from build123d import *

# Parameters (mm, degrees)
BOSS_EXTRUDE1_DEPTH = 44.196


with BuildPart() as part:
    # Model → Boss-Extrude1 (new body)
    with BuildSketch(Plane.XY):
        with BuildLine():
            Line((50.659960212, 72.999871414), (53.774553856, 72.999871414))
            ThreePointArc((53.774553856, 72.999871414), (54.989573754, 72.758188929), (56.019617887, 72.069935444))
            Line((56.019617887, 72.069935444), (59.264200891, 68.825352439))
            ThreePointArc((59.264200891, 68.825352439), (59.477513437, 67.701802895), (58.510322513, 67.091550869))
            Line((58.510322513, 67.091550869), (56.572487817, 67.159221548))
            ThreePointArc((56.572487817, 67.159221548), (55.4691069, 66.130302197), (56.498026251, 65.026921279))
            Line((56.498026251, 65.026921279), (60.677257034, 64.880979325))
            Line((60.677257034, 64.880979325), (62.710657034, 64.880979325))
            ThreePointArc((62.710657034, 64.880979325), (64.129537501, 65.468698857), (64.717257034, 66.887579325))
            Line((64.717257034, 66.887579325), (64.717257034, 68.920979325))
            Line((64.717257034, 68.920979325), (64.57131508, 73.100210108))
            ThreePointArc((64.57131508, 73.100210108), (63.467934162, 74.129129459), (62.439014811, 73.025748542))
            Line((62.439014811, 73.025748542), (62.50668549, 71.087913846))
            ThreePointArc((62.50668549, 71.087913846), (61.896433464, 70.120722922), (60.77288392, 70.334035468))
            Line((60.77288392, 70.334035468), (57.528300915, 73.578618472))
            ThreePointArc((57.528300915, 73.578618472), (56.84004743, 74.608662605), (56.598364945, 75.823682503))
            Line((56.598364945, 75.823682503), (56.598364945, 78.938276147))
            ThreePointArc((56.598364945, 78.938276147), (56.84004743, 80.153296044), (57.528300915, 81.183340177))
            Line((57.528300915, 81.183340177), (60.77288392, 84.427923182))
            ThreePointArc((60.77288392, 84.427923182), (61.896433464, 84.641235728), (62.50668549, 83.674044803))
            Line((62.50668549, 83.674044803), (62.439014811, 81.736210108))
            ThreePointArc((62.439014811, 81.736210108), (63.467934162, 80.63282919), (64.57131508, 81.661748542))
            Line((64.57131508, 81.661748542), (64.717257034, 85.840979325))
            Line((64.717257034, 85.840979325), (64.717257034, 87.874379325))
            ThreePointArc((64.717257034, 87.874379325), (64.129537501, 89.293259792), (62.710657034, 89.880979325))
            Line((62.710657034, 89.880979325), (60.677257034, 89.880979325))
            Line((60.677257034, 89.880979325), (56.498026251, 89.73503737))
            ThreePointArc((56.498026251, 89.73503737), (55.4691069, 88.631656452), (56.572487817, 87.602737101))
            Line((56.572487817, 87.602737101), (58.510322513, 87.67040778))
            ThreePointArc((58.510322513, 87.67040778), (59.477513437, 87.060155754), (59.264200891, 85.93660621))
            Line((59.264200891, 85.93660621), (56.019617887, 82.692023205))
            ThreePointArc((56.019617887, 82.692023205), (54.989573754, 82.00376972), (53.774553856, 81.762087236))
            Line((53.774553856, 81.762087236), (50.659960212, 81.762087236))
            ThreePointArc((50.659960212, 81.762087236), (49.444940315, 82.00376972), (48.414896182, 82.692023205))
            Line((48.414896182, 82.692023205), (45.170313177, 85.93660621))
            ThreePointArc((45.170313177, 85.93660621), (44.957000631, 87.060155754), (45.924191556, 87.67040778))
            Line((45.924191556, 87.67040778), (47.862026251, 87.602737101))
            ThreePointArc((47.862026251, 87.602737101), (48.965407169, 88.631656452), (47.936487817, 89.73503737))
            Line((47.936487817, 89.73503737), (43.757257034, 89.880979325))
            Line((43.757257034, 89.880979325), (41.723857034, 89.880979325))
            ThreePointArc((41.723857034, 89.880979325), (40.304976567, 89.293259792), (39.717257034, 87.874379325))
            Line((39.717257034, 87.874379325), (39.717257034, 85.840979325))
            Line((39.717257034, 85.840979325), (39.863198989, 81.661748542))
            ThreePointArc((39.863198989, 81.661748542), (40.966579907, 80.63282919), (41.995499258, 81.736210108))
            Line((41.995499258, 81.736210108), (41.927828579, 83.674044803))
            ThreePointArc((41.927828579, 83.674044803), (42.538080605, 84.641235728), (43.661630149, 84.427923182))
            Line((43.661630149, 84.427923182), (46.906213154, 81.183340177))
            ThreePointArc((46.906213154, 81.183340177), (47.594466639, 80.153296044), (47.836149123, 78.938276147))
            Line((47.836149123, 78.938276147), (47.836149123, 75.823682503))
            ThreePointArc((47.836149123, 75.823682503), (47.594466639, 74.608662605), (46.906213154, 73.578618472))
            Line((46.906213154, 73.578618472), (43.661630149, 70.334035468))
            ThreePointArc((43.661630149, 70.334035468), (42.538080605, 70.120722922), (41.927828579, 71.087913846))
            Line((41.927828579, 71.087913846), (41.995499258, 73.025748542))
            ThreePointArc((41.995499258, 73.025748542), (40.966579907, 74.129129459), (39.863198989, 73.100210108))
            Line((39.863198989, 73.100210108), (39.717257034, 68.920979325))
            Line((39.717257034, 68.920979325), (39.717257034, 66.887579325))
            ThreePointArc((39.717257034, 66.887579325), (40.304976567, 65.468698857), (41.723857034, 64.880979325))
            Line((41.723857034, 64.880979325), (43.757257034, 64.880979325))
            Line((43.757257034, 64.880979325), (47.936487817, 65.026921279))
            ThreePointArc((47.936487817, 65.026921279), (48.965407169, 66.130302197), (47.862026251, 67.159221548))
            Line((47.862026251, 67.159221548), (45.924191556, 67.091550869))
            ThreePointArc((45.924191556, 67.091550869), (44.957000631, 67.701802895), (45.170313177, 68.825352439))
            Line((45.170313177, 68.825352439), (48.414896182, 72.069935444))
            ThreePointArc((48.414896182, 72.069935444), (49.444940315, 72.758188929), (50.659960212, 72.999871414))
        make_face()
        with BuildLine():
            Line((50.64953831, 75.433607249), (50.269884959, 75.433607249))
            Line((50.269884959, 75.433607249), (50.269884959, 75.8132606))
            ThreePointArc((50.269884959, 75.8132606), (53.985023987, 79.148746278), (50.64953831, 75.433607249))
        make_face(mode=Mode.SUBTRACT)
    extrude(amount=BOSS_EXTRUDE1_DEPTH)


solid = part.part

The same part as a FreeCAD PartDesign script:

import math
import FreeCAD as App
import Part
import Sketcher
Q = App.Units.Quantity

doc = App.newDocument("Part")
body = doc.addObject("PartDesign::Body", "Body")

# Sketch on XY plane
sketch1 = doc.addObject("Sketcher::SketchObject", "Sketch")
body.addObject(sketch1)
sketch1.AttachmentSupport = (doc.XY_Plane, [""])
sketch1.MapMode = "FlatFace"
sketch1.addGeometry([
    Part.LineSegment(App.Vector(50.66, 73, 0), App.Vector(53.77, 73, 0)),  # 0
    Part.ArcOfCircle(Part.Circle(App.Vector(53.77, 69.82, 0), App.Vector(0, 0, 1), 3.18), math.radians(45), math.radians(90)),  # 1
    Part.LineSegment(App.Vector(56.02, 72.07, 0), App.Vector(59.26, 68.83, 0)),  # 2
    Part.ArcOfCircle(Part.Circle(App.Vector(58.55, 68.11, 0), App.Vector(0, 0, 1), 1.02), math.radians(-92), math.radians(45)),  # 3
    Part.LineSegment(App.Vector(58.51, 67.09, 0), App.Vector(56.57, 67.16, 0)),  # 4
    Part.ArcOfCircle(Part.Circle(App.Vector(56.54, 66.09, 0), App.Vector(0, 0, 1), 1.07), math.radians(88), math.radians(268)),  # 5
    Part.LineSegment(App.Vector(56.5, 65.03, 0), App.Vector(60.68, 64.88, 0)),  # 6
    Part.LineSegment(App.Vector(60.68, 64.88, 0), App.Vector(62.71, 64.88, 0)),  # 7
    Part.ArcOfCircle(Part.Circle(App.Vector(62.71, 66.89, 0), App.Vector(0, 0, 1), 2.01), math.radians(-90), math.radians(0)),  # 8
    Part.LineSegment(App.Vector(64.72, 66.89, 0), App.Vector(64.72, 68.92, 0)),  # 9
    Part.LineSegment(App.Vector(64.72, 68.92, 0), App.Vector(64.57, 73.1, 0)),  # 10
    Part.ArcOfCircle(Part.Circle(App.Vector(63.51, 73.06, 0), App.Vector(0, 0, 1), 1.07), math.radians(2), math.radians(182)),  # 11
    Part.LineSegment(App.Vector(62.44, 73.03, 0), App.Vector(62.51, 71.09, 0)),  # 12
    Part.ArcOfCircle(Part.Circle(App.Vector(61.49, 71.05, 0), App.Vector(0, 0, 1), 1.02), math.radians(-135), math.radians(2)),  # 13
    Part.LineSegment(App.Vector(60.77, 70.33, 0), App.Vector(57.53, 73.58, 0)),  # 14
    Part.ArcOfCircle(Part.Circle(App.Vector(59.77, 75.82, 0), App.Vector(0, 0, 1), 3.18), math.radians(-180), math.radians(-135)),  # 15
    Part.LineSegment(App.Vector(56.6, 75.82, 0), App.Vector(56.6, 78.94, 0)),  # 16
    Part.ArcOfCircle(Part.Circle(App.Vector(59.77, 78.94, 0), App.Vector(0, 0, 1), 3.18), math.radians(135), math.radians(180)),  # 17
    Part.LineSegment(App.Vector(57.53, 81.18, 0), App.Vector(60.77, 84.43, 0)),  # 18
    Part.ArcOfCircle(Part.Circle(App.Vector(61.49, 83.71, 0), App.Vector(0, 0, 1), 1.02), math.radians(-2), math.radians(135)),  # 19
    Part.LineSegment(App.Vector(62.51, 83.67, 0), App.Vector(62.44, 81.74, 0)),  # 20
    Part.ArcOfCircle(Part.Circle(App.Vector(63.51, 81.7, 0), App.Vector(0, 0, 1), 1.07), math.radians(178), math.radians(358)),  # 21
    Part.LineSegment(App.Vector(64.57, 81.66, 0), App.Vector(64.72, 85.84, 0)),  # 22
    Part.LineSegment(App.Vector(64.72, 85.84, 0), App.Vector(64.72, 87.87, 0)),  # 23
    Part.ArcOfCircle(Part.Circle(App.Vector(62.71, 87.87, 0), App.Vector(0, 0, 1), 2.01), math.radians(0), math.radians(90)),  # 24
    Part.LineSegment(App.Vector(62.71, 89.88, 0), App.Vector(60.68, 89.88, 0)),  # 25
    Part.LineSegment(App.Vector(60.68, 89.88, 0), App.Vector(56.5, 89.74, 0)),  # 26
    Part.ArcOfCircle(Part.Circle(App.Vector(56.54, 88.67, 0), App.Vector(0, 0, 1), 1.07), math.radians(92), math.radians(272)),  # 27
    Part.LineSegment(App.Vector(56.57, 87.6, 0), App.Vector(58.51, 87.67, 0)),  # 28
    Part.ArcOfCircle(Part.Circle(App.Vector(58.55, 86.66, 0), App.Vector(0, 0, 1), 1.02), math.radians(-45), math.radians(92)),  # 29
    Part.LineSegment(App.Vector(59.26, 85.94, 0), App.Vector(56.02, 82.69, 0)),  # 30
    Part.ArcOfCircle(Part.Circle(App.Vector(53.77, 84.94, 0), App.Vector(0, 0, 1), 3.18), math.radians(-90), math.radians(-45)),  # 31
    Part.LineSegment(App.Vector(53.77, 81.76, 0), App.Vector(50.66, 81.76, 0)),  # 32
    Part.ArcOfCircle(Part.Circle(App.Vector(50.66, 84.94, 0), App.Vector(0, 0, 1), 3.18), math.radians(-135), math.radians(-90)),  # 33
    Part.LineSegment(App.Vector(48.41, 82.69, 0), App.Vector(45.17, 85.94, 0)),  # 34
    Part.ArcOfCircle(Part.Circle(App.Vector(45.89, 86.66, 0), App.Vector(0, 0, 1), 1.02), math.radians(88), math.radians(225)),  # 35
    Part.LineSegment(App.Vector(45.92, 87.67, 0), App.Vector(47.86, 87.6, 0)),  # 36
    Part.ArcOfCircle(Part.Circle(App.Vector(47.9, 88.67, 0), App.Vector(0, 0, 1), 1.07), math.radians(-92), math.radians(88)),  # 37
    Part.LineSegment(App.Vector(47.94, 89.74, 0), App.Vector(43.76, 89.88, 0)),  # 38
    Part.LineSegment(App.Vector(43.76, 89.88, 0), App.Vector(41.72, 89.88, 0)),  # 39
    Part.ArcOfCircle(Part.Circle(App.Vector(41.72, 87.87, 0), App.Vector(0, 0, 1), 2.01), math.radians(90), math.radians(180)),  # 40
    Part.LineSegment(App.Vector(39.72, 87.87, 0), App.Vector(39.72, 85.84, 0)),  # 41
    Part.LineSegment(App.Vector(39.72, 85.84, 0), App.Vector(39.86, 81.66, 0)),  # 42
    Part.ArcOfCircle(Part.Circle(App.Vector(40.93, 81.7, 0), App.Vector(0, 0, 1), 1.07), math.radians(-178), math.radians(2)),  # 43
    Part.LineSegment(App.Vector(42, 81.74, 0), App.Vector(41.93, 83.67, 0)),  # 44
    Part.ArcOfCircle(Part.Circle(App.Vector(42.94, 83.71, 0), App.Vector(0, 0, 1), 1.02), math.radians(45), math.radians(182)),  # 45
    Part.LineSegment(App.Vector(43.66, 84.43, 0), App.Vector(46.91, 81.18, 0)),  # 46
    Part.ArcOfCircle(Part.Circle(App.Vector(44.66, 78.94, 0), App.Vector(0, 0, 1), 3.18), math.radians(0), math.radians(45)),  # 47
    Part.LineSegment(App.Vector(47.84, 78.94, 0), App.Vector(47.84, 75.82, 0)),  # 48
    Part.ArcOfCircle(Part.Circle(App.Vector(44.66, 75.82, 0), App.Vector(0, 0, 1), 3.18), math.radians(-45), math.radians(0)),  # 49
    Part.LineSegment(App.Vector(46.91, 73.58, 0), App.Vector(43.66, 70.33, 0)),  # 50
    Part.ArcOfCircle(Part.Circle(App.Vector(42.94, 71.05, 0), App.Vector(0, 0, 1), 1.02), math.radians(178), math.radians(315)),  # 51
    Part.LineSegment(App.Vector(41.93, 71.09, 0), App.Vector(42, 73.03, 0)),  # 52
    Part.ArcOfCircle(Part.Circle(App.Vector(40.93, 73.06, 0), App.Vector(0, 0, 1), 1.07), math.radians(-2), math.radians(178)),  # 53
    Part.LineSegment(App.Vector(39.86, 73.1, 0), App.Vector(39.72, 68.92, 0)),  # 54
    Part.LineSegment(App.Vector(39.72, 68.92, 0), App.Vector(39.72, 66.89, 0)),  # 55
    Part.ArcOfCircle(Part.Circle(App.Vector(41.72, 66.89, 0), App.Vector(0, 0, 1), 2.01), math.radians(180), math.radians(270)),  # 56
    Part.LineSegment(App.Vector(41.72, 64.88, 0), App.Vector(43.76, 64.88, 0)),  # 57
    Part.LineSegment(App.Vector(43.76, 64.88, 0), App.Vector(47.94, 65.03, 0)),  # 58
    Part.ArcOfCircle(Part.Circle(App.Vector(47.9, 66.09, 0), App.Vector(0, 0, 1), 1.07), math.radians(-88), math.radians(92)),  # 59
    Part.LineSegment(App.Vector(47.86, 67.16, 0), App.Vector(45.92, 67.09, 0)),  # 60
    Part.ArcOfCircle(Part.Circle(App.Vector(45.89, 68.11, 0), App.Vector(0, 0, 1), 1.02), math.radians(135), math.radians(272)),  # 61
    Part.LineSegment(App.Vector(45.17, 68.83, 0), App.Vector(48.41, 72.07, 0)),  # 62
    Part.ArcOfCircle(Part.Circle(App.Vector(50.66, 69.82, 0), App.Vector(0, 0, 1), 3.18), math.radians(90), math.radians(135)),  # 63
    Part.ArcOfCircle(Part.Circle(App.Vector(52.22, 77.38, 0), App.Vector(0, 0, 1), 2.5), math.radians(-129), math.radians(219)),  # 64
    Part.LineSegment(App.Vector(50.65, 75.43, 0), App.Vector(50.27, 75.43, 0)),  # 65
    Part.LineSegment(App.Vector(50.27, 75.43, 0), App.Vector(50.27, 75.81, 0)),  # 66
], False)
sketch1.addConstraint([
    Sketcher.Constraint("Tangent", 0, 2, 1, 2),
    Sketcher.Constraint("Tangent", 1, 1, 2, 1),
    Sketcher.Constraint("Tangent", 2, 2, 3, 2),
    Sketcher.Constraint("Tangent", 3, 1, 4, 1),
    Sketcher.Constraint("Tangent", 4, 2, 5, 1),
    Sketcher.Constraint("Tangent", 5, 2, 6, 1),
    Sketcher.Constraint("Coincident", 6, 2, 7, 1),
    Sketcher.Constraint("Tangent", 7, 2, 8, 1),
    Sketcher.Constraint("Tangent", 8, 2, 9, 1),
    Sketcher.Constraint("Coincident", 9, 2, 10, 1),
    Sketcher.Constraint("Tangent", 10, 2, 11, 1),
    Sketcher.Constraint("Tangent", 11, 2, 12, 1),
    Sketcher.Constraint("Tangent", 12, 2, 13, 2),
    Sketcher.Constraint("Tangent", 13, 1, 14, 1),
    Sketcher.Constraint("Tangent", 14, 2, 15, 2),
    Sketcher.Constraint("Tangent", 15, 1, 16, 1),
    Sketcher.Constraint("Tangent", 16, 2, 17, 2),
    Sketcher.Constraint("Tangent", 17, 1, 18, 1),
    Sketcher.Constraint("Tangent", 18, 2, 19, 2),
    Sketcher.Constraint("Tangent", 19, 1, 20, 1),
    Sketcher.Constraint("Tangent", 20, 2, 21, 1),
    Sketcher.Constraint("Tangent", 21, 2, 22, 1),
    Sketcher.Constraint("Coincident", 22, 2, 23, 1),
    Sketcher.Constraint("Tangent", 23, 2, 24, 1),
    Sketcher.Constraint("Tangent", 24, 2, 25, 1),
    Sketcher.Constraint("Coincident", 25, 2, 26, 1),
    Sketcher.Constraint("Tangent", 26, 2, 27, 1),
    Sketcher.Constraint("Tangent", 27, 2, 28, 1),
    Sketcher.Constraint("Tangent", 28, 2, 29, 2),
    Sketcher.Constraint("Tangent", 29, 1, 30, 1),
    Sketcher.Constraint("Tangent", 30, 2, 31, 2),
    Sketcher.Constraint("Tangent", 31, 1, 32, 1),
    Sketcher.Constraint("Tangent", 32, 2, 33, 2),
    Sketcher.Constraint("Tangent", 33, 1, 34, 1),
    Sketcher.Constraint("Tangent", 34, 2, 35, 2),
    Sketcher.Constraint("Tangent", 35, 1, 36, 1),
    Sketcher.Constraint("Tangent", 36, 2, 37, 1),
    Sketcher.Constraint("Tangent", 37, 2, 38, 1),
    Sketcher.Constraint("Coincident", 38, 2, 39, 1),
    Sketcher.Constraint("Tangent", 39, 2, 40, 1),
    Sketcher.Constraint("Tangent", 40, 2, 41, 1),
    Sketcher.Constraint("Coincident", 41, 2, 42, 1),
    Sketcher.Constraint("Tangent", 42, 2, 43, 1),
    Sketcher.Constraint("Tangent", 43, 2, 44, 1),
    Sketcher.Constraint("Tangent", 44, 2, 45, 2),
    Sketcher.Constraint("Tangent", 45, 1, 46, 1),
    Sketcher.Constraint("Tangent", 46, 2, 47, 2),
    Sketcher.Constraint("Tangent", 47, 1, 48, 1),
    Sketcher.Constraint("Tangent", 48, 2, 49, 2),
    Sketcher.Constraint("Tangent", 49, 1, 50, 1),
    Sketcher.Constraint("Tangent", 50, 2, 51, 2),
    Sketcher.Constraint("Tangent", 51, 1, 52, 1),
    Sketcher.Constraint("Tangent", 52, 2, 53, 1),
    Sketcher.Constraint("Tangent", 53, 2, 54, 1),
    Sketcher.Constraint("Coincident", 54, 2, 55, 1),
    Sketcher.Constraint("Tangent", 55, 2, 56, 1),
    Sketcher.Constraint("Tangent", 56, 2, 57, 1),
    Sketcher.Constraint("Coincident", 57, 2, 58, 1),
    Sketcher.Constraint("Tangent", 58, 2, 59, 1),
    Sketcher.Constraint("Tangent", 59, 2, 60, 1),
    Sketcher.Constraint("Tangent", 60, 2, 61, 2),
    Sketcher.Constraint("Tangent", 61, 1, 62, 1),
    Sketcher.Constraint("Tangent", 62, 2, 63, 2),
    Sketcher.Constraint("Tangent", 63, 1, 0, 1),
    Sketcher.Constraint("Coincident", 64, 1, 65, 1),
    Sketcher.Constraint("Coincident", 65, 2, 66, 1),
    Sketcher.Constraint("Coincident", 66, 2, 64, 2),
    Sketcher.Constraint("Horizontal", 0),
    Sketcher.Constraint("Horizontal", 7),
    Sketcher.Constraint("Vertical", 9),
    Sketcher.Constraint("Vertical", 16),
    Sketcher.Constraint("Vertical", 23),
    Sketcher.Constraint("Horizontal", 25),
    Sketcher.Constraint("Horizontal", 32),
    Sketcher.Constraint("Horizontal", 39),
    Sketcher.Constraint("Vertical", 41),
    Sketcher.Constraint("Vertical", 48),
    Sketcher.Constraint("Vertical", 55),
    Sketcher.Constraint("Horizontal", 57),
    Sketcher.Constraint("Horizontal", 65),
    Sketcher.Constraint("Vertical", 66),
    Sketcher.Constraint("Equal", 5, 11),
    Sketcher.Constraint("Equal", 3, 13),
    Sketcher.Constraint("Equal", 1, 15),
    Sketcher.Constraint("Equal", 15, 17),
    Sketcher.Constraint("Equal", 13, 19),
    Sketcher.Constraint("Equal", 11, 21),
    Sketcher.Constraint("Equal", 8, 24),
    Sketcher.Constraint("Equal", 21, 27),
    Sketcher.Constraint("Equal", 19, 29),
    Sketcher.Constraint("Equal", 17, 31),
    Sketcher.Constraint("Equal", 31, 33),
    Sketcher.Constraint("Equal", 29, 35),
    Sketcher.Constraint("Equal", 27, 37),
    Sketcher.Constraint("Equal", 24, 40),
    Sketcher.Constraint("Equal", 37, 43),
    Sketcher.Constraint("Equal", 35, 45),
    Sketcher.Constraint("Equal", 33, 47),
    Sketcher.Constraint("Equal", 47, 49),
    Sketcher.Constraint("Equal", 45, 51),
    Sketcher.Constraint("Equal", 43, 53),
    Sketcher.Constraint("Equal", 40, 56),
    Sketcher.Constraint("Equal", 53, 59),
    Sketcher.Constraint("Equal", 51, 61),
    Sketcher.Constraint("Equal", 49, 63),
    Sketcher.Constraint("Parallel", 4, 6),
    Sketcher.Constraint("Parallel", 10, 12),
    Sketcher.Constraint("Parallel", 2, 14),
    Sketcher.Constraint("Perpendicular", 14, 18),
    Sketcher.Constraint("Perpendicular", 6, 20),
    Sketcher.Constraint("Parallel", 20, 22),
    Sketcher.Constraint("Perpendicular", 12, 26),
    Sketcher.Constraint("Parallel", 26, 28),
    Sketcher.Constraint("Parallel", 18, 30),
    Sketcher.Constraint("Perpendicular", 30, 34),
    Sketcher.Constraint("Perpendicular", 22, 36),
    Sketcher.Constraint("Parallel", 36, 38),
    Sketcher.Constraint("Perpendicular", 28, 42),
    Sketcher.Constraint("Parallel", 42, 44),
    Sketcher.Constraint("Parallel", 34, 46),
    Sketcher.Constraint("Perpendicular", 46, 50),
    Sketcher.Constraint("Perpendicular", 38, 52),
    Sketcher.Constraint("Parallel", 52, 54),
    Sketcher.Constraint("Perpendicular", 44, 58),
    Sketcher.Constraint("Parallel", 58, 60),
    Sketcher.Constraint("Parallel", 50, 62),
    Sketcher.Constraint("Horizontal", 29, 3, 35, 3),
    Sketcher.Constraint("Horizontal", 27, 3, 37, 3),
    Sketcher.Constraint("Horizontal", 24, 3, 40, 3),
    Sketcher.Constraint("Horizontal", 21, 3, 43, 3),
    Sketcher.Constraint("Horizontal", 19, 3, 45, 3),
    Sketcher.Constraint("Horizontal", 17, 3, 47, 3),
    Sketcher.Constraint("Horizontal", 15, 3, 49, 3),
    Sketcher.Constraint("Horizontal", 13, 3, 51, 3),
    Sketcher.Constraint("Horizontal", 11, 3, 53, 3),
    Sketcher.Constraint("Horizontal", 8, 3, 56, 3),
    Sketcher.Constraint("Horizontal", 5, 3, 59, 3),
    Sketcher.Constraint("Horizontal", 3, 3, 61, 3),
    Sketcher.Constraint("Horizontal", 30, 2, 33, 1),
    Sketcher.Constraint("Horizontal", 22, 2, 41, 2),
    Sketcher.Constraint("Horizontal", 21, 2, 42, 2),
    Sketcher.Constraint("Horizontal", 9, 2, 54, 2),
    Sketcher.Constraint("Vertical", 13, 3, 19, 3),
    Sketcher.Constraint("Vertical", 11, 3, 21, 3),
    Sketcher.Constraint("Vertical", 8, 3, 24, 3),
    Sketcher.Constraint("Vertical", 5, 3, 27, 3),
    Sketcher.Constraint("Vertical", 3, 3, 29, 3),
    Sketcher.Constraint("Vertical", 1, 3, 31, 3),
    Sketcher.Constraint("Vertical", 37, 3, 59, 3),
    Sketcher.Constraint("Vertical", 6, 2, 25, 2),
    Sketcher.Constraint("Equal", 25, 39),
    Sketcher.Constraint("Equal", 57, 9),
    Sketcher.Constraint("Equal", 32, 16),
    Sketcher.Constraint("Equal", 9, 23),
    Sketcher.Constraint("Equal", 65, 66),
    Sketcher.Constraint("Equal", 6, 10),
    Sketcher.Constraint("Equal", 4, 12),
    Sketcher.Constraint("Equal", 2, 14),
    Sketcher.Constraint("Radius", 3, Q("0.04 in")),
    Sketcher.Constraint("Angle", 4, Q("178 deg")),
    Sketcher.Constraint("Radius", 1, Q("0.125 in")),
    Sketcher.Constraint("Radius", 5, Q("0.042 in")),
    Sketcher.Constraint("Radius", 8, Q("0.079 in")),
    Sketcher.Constraint("Radius", 64, Q("2.5 mm")),
    Sketcher.Constraint("DistanceX", 7, 1, 7, 2, Q("2.0334 mm")),
    Sketcher.Constraint("DistanceX", -1, 1, 2, 2, Q("59.264201 mm")),
    Sketcher.Constraint("DistanceX", -1, 1, 14, 2, Q("57.528301 mm")),
    Sketcher.Constraint("DistanceX", -1, 1, 42, 2, Q("39.863199 mm")),
    Sketcher.Constraint("Distance", 6, Q("4.181778 mm")),
    Sketcher.Constraint("DistanceX", 0, 1, 0, 2, Q("3.114594 mm")),
    Sketcher.Constraint("DistanceX", 65, 2, 65, 1, Q("0.379653 mm")),
    Sketcher.Constraint("DistanceY", -1, 1, 1, 3, Q("69.824871 mm")),
    Sketcher.Constraint("DistanceY", -1, 1, 64, 3, Q("77.380979 mm")),
    Sketcher.Constraint("DistanceX", -1, 1, 64, 1, Q("50.649538 mm")),
])
pad1 = doc.addObject("PartDesign::Pad", "Pad")
body.addObject(pad1)
pad1.Profile = sketch1
pad1.Length = Q("1.74 in")

doc.recompute()
